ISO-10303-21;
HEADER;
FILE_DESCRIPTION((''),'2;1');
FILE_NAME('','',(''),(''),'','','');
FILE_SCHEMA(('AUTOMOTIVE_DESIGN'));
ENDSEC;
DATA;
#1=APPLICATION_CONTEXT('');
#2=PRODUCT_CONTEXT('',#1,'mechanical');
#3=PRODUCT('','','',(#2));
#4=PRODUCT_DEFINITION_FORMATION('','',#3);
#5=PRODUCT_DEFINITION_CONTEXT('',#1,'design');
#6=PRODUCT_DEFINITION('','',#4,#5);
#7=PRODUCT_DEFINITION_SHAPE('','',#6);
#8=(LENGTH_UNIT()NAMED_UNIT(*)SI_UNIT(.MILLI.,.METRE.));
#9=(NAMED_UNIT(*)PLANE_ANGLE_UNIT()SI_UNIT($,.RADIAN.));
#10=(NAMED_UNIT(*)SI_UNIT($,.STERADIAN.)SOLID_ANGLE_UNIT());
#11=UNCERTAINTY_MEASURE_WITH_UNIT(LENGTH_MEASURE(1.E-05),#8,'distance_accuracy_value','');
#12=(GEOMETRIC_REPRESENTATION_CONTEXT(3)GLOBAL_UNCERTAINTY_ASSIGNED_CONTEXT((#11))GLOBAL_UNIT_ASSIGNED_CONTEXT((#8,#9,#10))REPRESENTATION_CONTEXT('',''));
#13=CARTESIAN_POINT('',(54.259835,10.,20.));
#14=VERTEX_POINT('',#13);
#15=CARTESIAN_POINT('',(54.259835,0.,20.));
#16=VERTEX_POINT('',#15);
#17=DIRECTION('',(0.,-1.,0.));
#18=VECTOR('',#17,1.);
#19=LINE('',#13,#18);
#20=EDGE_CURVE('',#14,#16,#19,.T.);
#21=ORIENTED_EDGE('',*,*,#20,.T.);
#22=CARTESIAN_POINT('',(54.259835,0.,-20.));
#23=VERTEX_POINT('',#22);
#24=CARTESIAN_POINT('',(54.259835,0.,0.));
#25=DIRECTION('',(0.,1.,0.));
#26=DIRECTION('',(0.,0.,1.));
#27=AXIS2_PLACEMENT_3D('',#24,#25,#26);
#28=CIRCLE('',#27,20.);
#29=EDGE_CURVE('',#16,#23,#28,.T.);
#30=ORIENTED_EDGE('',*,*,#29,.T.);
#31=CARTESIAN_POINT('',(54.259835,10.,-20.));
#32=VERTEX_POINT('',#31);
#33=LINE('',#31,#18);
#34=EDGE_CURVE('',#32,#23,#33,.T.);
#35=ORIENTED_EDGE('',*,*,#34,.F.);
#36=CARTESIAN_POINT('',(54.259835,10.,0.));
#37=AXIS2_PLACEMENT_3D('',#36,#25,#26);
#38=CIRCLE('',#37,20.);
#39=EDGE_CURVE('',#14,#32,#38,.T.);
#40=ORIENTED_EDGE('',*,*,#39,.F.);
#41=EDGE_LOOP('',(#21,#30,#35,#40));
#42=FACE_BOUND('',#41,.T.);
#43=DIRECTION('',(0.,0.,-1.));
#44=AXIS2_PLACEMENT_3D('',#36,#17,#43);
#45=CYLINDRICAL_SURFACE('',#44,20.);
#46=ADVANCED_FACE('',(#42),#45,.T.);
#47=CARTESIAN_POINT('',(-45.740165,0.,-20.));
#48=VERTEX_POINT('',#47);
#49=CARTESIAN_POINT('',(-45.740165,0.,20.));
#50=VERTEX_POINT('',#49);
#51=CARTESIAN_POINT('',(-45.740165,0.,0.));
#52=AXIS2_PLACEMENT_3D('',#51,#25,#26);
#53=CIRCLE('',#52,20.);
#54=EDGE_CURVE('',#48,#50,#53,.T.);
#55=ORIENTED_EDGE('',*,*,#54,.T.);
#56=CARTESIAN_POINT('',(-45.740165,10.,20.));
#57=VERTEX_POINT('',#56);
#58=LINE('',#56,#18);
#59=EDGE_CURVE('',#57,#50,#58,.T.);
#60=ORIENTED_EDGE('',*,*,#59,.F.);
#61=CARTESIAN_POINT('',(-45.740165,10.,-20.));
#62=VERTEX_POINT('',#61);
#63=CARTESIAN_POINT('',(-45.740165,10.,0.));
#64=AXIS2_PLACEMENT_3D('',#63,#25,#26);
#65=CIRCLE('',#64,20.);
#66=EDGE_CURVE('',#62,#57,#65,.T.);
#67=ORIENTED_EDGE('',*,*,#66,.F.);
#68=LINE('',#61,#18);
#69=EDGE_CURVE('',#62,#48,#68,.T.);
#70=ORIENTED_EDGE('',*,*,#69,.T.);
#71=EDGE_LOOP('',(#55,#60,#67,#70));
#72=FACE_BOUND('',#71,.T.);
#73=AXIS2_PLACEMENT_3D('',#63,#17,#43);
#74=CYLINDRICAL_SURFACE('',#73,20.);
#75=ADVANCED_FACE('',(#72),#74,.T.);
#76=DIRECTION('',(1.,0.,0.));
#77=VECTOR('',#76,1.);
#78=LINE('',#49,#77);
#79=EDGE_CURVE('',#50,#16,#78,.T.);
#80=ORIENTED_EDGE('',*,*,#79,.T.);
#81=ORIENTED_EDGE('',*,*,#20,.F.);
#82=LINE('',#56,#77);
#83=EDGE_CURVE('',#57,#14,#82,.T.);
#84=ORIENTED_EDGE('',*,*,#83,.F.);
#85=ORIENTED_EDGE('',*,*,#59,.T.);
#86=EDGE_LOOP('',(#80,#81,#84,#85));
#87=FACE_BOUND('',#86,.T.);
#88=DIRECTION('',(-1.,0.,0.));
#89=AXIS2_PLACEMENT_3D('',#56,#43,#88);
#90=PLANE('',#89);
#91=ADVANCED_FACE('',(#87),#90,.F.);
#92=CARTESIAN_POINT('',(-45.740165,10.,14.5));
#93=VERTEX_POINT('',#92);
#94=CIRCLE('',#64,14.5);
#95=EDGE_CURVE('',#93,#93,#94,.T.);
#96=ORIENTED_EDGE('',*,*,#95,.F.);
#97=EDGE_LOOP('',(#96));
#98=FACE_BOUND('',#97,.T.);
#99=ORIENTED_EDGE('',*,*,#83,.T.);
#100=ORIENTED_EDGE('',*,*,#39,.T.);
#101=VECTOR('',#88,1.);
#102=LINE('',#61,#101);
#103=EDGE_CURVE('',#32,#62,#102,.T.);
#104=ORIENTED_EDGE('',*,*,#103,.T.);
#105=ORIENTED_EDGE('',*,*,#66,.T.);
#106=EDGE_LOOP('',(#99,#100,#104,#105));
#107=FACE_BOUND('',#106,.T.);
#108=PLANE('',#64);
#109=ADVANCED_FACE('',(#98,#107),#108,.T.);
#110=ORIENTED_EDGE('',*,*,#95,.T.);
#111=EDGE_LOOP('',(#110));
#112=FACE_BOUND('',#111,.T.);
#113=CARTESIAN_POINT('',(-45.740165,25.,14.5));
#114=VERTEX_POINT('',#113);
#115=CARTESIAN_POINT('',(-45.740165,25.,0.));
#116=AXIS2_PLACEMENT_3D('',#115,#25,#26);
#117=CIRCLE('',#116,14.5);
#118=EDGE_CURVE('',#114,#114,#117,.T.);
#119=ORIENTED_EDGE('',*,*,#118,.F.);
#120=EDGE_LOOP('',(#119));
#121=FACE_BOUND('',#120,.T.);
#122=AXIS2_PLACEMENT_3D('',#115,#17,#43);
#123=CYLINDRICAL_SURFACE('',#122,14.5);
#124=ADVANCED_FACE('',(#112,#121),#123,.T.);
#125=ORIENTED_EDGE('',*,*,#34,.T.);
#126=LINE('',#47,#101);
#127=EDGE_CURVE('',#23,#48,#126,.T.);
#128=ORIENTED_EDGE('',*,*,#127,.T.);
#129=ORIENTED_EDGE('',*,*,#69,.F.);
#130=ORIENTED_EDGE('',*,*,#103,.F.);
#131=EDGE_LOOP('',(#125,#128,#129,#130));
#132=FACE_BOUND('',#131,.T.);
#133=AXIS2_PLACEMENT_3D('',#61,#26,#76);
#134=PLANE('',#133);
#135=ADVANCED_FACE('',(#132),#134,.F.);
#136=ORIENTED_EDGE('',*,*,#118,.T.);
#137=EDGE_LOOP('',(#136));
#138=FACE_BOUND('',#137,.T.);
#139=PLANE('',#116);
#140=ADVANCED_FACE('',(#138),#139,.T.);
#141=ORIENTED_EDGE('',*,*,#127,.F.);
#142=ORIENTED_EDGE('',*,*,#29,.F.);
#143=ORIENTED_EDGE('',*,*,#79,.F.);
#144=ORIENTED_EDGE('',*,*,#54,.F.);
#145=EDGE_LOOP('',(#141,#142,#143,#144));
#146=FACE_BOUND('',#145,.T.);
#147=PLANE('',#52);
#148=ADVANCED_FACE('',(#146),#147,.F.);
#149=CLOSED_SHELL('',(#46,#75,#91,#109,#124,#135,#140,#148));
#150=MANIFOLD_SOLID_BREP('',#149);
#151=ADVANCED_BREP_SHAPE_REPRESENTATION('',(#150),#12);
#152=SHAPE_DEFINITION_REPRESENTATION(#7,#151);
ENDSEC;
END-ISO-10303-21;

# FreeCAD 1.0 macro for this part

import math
import FreeCAD as App
import Part
import Sketcher
from FreeCAD import Vector

doc = App.newDocument("Part")
body = doc.addObject("PartDesign::Body", "Body")

# Sketch on XZ plane
sketch1 = doc.addObject("Sketcher::SketchObject", "Sketch")
body.addObject(sketch1)
sketch1.AttachmentSupport = (doc.XZ_Plane, [""])
sketch1.MapMode = "FlatFace"
sketch1.addGeometry(Part.LineSegment(Vector(54, -20, 0), Vector(-46, -20, 0)), False)
sketch1.addGeometry(Part.ArcOfCircle(Part.Circle(Vector(-46, 0, 0), Vector(0, 0, 1), 20), math.radians(90), math.radians(270)), False)
sketch1.addGeometry(Part.LineSegment(Vector(-46, 20, 0), Vector(54, 20, 0)), False)
sketch1.addGeometry(Part.ArcOfCircle(Part.Circle(Vector(54, 0, 0), Vector(0, 0, 1), 20), math.radians(-90), math.radians(90)), False)
sketch1.addConstraint(Sketcher.Constraint("Tangent", 0, 2, 1, 2))
sketch1.addConstraint(Sketcher.Constraint("Tangent", 1, 1, 2, 1))
sketch1.addConstraint(Sketcher.Constraint("Tangent", 2, 2, 3, 2))
sketch1.addConstraint(Sketcher.Constraint("Tangent", 3, 1, 0, 1))
sketch1.addConstraint(Sketcher.Constraint("Horizontal", 0))
sketch1.addConstraint(Sketcher.Constraint("Horizontal", 2))
sketch1.addConstraint(Sketcher.Constraint("PointOnObject", 1, 3, -1))
sketch1.addConstraint(Sketcher.Constraint("Radius", 1, 20.0))
sketch1.addConstraint(Sketcher.Constraint("DistanceX", 0, 2, 0, 1, 100.0))
sketch1.addConstraint(Sketcher.Constraint("DistanceX", 1, 3, -1, 1, 45.740165))
pad1 = doc.addObject("PartDesign::Pad", "Pad")
body.addObject(pad1)
pad1.Profile = sketch1
pad1.Length = 10
pad1.Reversed = True

# Sketch on XZ plane
sketch2 = doc.addObject("Sketcher::SketchObject", "Sketch001")
body.addObject(sketch2)
sketch2.AttachmentSupport = (doc.XZ_Plane, [""])
sketch2.MapMode = "FlatFace"
sketch2.AttachmentOffset = App.Placement(Vector(0, 0, -10), App.Rotation())
sketch2.addGeometry(Part.Circle(Vector(-46, 0, 0), Vector(0, 0, 1), 14), False)
sketch2.addConstraint(Sketcher.Constraint("PointOnObject", 0, 3, -1))
sketch2.addConstraint(Sketcher.Constraint("Diameter", 0, 29.0))
sketch2.addConstraint(Sketcher.Constraint("DistanceX", 0, 3, -1, 1, 45.740165))
pad2 = doc.addObject("PartDesign::Pad", "Pad001")
body.addObject(pad2)
pad2.Profile = sketch2
pad2.Length = 15
pad2.Reversed = True

doc.recompute()
